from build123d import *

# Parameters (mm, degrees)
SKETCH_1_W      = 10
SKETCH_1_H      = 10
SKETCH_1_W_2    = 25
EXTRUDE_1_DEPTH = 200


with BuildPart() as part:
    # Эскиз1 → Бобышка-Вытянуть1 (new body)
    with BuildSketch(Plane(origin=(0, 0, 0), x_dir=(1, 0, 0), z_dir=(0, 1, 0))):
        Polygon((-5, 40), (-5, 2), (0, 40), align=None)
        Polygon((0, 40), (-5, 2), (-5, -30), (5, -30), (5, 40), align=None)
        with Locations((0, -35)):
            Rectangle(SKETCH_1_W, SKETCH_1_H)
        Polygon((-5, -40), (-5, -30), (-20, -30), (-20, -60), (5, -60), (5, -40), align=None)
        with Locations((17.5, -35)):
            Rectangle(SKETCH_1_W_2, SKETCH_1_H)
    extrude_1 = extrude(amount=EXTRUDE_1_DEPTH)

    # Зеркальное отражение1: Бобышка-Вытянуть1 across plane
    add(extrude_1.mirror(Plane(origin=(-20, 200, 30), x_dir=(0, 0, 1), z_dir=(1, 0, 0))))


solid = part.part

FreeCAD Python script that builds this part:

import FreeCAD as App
import Part
import Sketcher
from FreeCAD import Vector
Q = App.Units.Quantity


def add_polygon(sketch, points):
    """Adds a closed chain of lines whose ends are joined by coincident constraints."""
    first, n = sketch.GeometryCount, len(points)
    for a, b in zip(points, points[1:] + points[:1]):
        sketch.addGeometry(Part.LineSegment(App.Vector(*a, 0), App.Vector(*b, 0)), False)
    for i in range(n):
        sketch.addConstraint(Sketcher.Constraint("Coincident", first + i, 2, first + (i + 1) % n, 1))

doc = App.newDocument("Part")
params = doc.addObject("Spreadsheet::Sheet", "Params")
for row, (alias, value) in enumerate([
    ("sketch1_width", "15 mm"),
    ("sketch1_width2", "25 mm"),
    ("sketch1_height", "70 mm"),
    ("sketch1_height2", "30 mm"),
    ("pad1_length", "200 mm"),
], start=1):
    params.set(f"A{row}", alias)
    params.set(f"B{row}", "=" + value)
    params.setAlias(f"B{row}", alias)

body = doc.addObject("PartDesign::Body", "Body")

# Sketch on XZ plane
sketch1 = body.newObject("Sketcher::SketchObject", "Sketch")
sketch1.AttachmentSupport = (doc.getObject("XZ_Plane"), [""])
sketch1.MapMode = "FlatFace"
add_polygon(sketch1, [(-5, -40), (-5, 30), (-20, 30), (-20, 60), (5, 60), (5, 40), (30, 40), (30, 30), (5, 30), (5, -40)])  # lines 0-9
sketch1.addConstraint([
    Sketcher.Constraint("Vertical", 0),
    Sketcher.Constraint("Horizontal", 1),
    Sketcher.Constraint("Vertical", 2),
    Sketcher.Constraint("Horizontal", 3),
    Sketcher.Constraint("Vertical", 4),
    Sketcher.Constraint("Horizontal", 5),
    Sketcher.Constraint("Vertical", 6),
    Sketcher.Constraint("Horizontal", 7),
    Sketcher.Constraint("Vertical", 8),
    Sketcher.Constraint("Horizontal", 9),
    Sketcher.Constraint("Symmetric", 4, 2, 9, 2, -1, 1),
    Sketcher.Constraint("Symmetric", 0, 2, 7, 2, -2),
    Sketcher.Constraint("Equal", 3, 5),
    Sketcher.Constraint("Equal", 9, 6),
    Sketcher.Constraint("DistanceX", 1, 2, 1, 1, Q("15 mm")),
    Sketcher.Constraint("DistanceX", 3, 1, 3, 2, Q("25 mm")),
    Sketcher.Constraint("DistanceY", 0, 1, 0, 2, Q("70 mm")),
    Sketcher.Constraint("DistanceY", 2, 1, 2, 2, Q("30 mm")),
])
sketch1.setExpression("Constraints[24]", "Params.sketch1_width")
sketch1.setExpression("Constraints[25]", "Params.sketch1_width2")
sketch1.setExpression("Constraints[26]", "Params.sketch1_height")
sketch1.setExpression("Constraints[27]", "Params.sketch1_height2")
pad1 = body.newObject("PartDesign::Pad", "Pad")
pad1.Profile = sketch1
pad1.setExpression("Length", "Params.pad1_length")
pad1.Reversed = True
doc.recompute()

datumplane = body.newObject("PartDesign::Plane", "DatumPlane")
datumplane.AttachmentSupport = (doc.getObject("YZ_Plane"), [""])
datumplane.MapMode = "FlatFace"
datumplane.AttachmentOffset = App.Placement(Vector(0, 0, -20), App.Rotation())
mirrored = body.newObject("PartDesign::Mirrored", "Mirrored")
mirrored.Originals = [pad1]
mirrored.MirrorPlane = (datumplane, [""])
body.Tip = mirrored

doc.recompute()
